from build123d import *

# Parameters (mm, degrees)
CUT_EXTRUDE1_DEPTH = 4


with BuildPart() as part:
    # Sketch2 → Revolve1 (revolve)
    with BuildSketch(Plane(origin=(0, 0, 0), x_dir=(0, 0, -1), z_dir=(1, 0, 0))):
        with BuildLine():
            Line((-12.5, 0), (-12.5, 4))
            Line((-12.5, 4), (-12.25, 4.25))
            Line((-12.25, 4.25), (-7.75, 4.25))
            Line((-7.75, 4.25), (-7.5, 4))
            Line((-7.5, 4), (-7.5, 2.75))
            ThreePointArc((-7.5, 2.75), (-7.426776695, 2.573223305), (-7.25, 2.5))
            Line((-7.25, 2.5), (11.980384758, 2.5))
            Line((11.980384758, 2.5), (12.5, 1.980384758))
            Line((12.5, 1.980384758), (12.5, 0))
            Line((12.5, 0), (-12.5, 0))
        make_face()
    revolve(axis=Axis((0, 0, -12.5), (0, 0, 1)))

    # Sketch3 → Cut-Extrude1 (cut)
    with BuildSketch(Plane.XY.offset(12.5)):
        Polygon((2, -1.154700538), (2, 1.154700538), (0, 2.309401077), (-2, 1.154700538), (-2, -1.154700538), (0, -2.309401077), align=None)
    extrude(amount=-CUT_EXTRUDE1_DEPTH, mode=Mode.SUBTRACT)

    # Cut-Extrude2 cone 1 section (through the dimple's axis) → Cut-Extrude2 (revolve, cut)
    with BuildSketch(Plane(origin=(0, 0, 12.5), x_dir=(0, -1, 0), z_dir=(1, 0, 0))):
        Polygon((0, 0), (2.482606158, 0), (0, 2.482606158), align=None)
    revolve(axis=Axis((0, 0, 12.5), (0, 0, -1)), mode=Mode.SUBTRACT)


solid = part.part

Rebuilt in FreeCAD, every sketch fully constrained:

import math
import FreeCAD as App
import Part
import Sketcher
Q = App.Units.Quantity


def add_polygon(sketch, points):
    """Adds a closed chain of lines whose ends are joined by coincident constraints."""
    first, n = sketch.GeometryCount, len(points)
    for a, b in zip(points, points[1:] + points[:1]):
        sketch.addGeometry(Part.LineSegment(App.Vector(*a, 0), App.Vector(*b, 0)), False)
    for i in range(n):
        sketch.addConstraint(Sketcher.Constraint("Coincident", first + i, 2, first + (i + 1) % n, 1))

doc = App.newDocument("Part")
body = doc.addObject("PartDesign::Body", "Body")

sketch1 = body.newObject("Sketcher::SketchObject", "Sketch")
sketch1.AttachmentSupport = (doc.getObject("YZ_Plane"), [""])
sketch1.MapMode = "FlatFace"
sketch1.addGeometry([
    Part.LineSegment(App.Vector(4, 12.5, 0), App.Vector(0, 12.5, 0)),
    Part.LineSegment(App.Vector(0, 12.5, 0), App.Vector(0, -12.5, 0)),
    Part.LineSegment(App.Vector(0, -12.5, 0), App.Vector(1.98, -12.5, 0)),
    Part.LineSegment(App.Vector(1.98, -12.5, 0), App.Vector(2.5, -11.98, 0)),
    Part.LineSegment(App.Vector(2.5, -11.98, 0), App.Vector(2.5, 7.25, 0)),
    Part.ArcOfCircle(Part.Circle(App.Vector(2.75, 7.25, 0), App.Vector(0, 0, 1), 0.25), math.radians(90), math.radians(180)),
    Part.LineSegment(App.Vector(2.75, 7.5, 0), App.Vector(4, 7.5, 0)),
    Part.LineSegment(App.Vector(4, 7.5, 0), App.Vector(4.25, 7.75, 0)),
    Part.LineSegment(App.Vector(4.25, 7.75, 0), App.Vector(4.25, 12.25, 0)),
    Part.LineSegment(App.Vector(4.25, 12.25, 0), App.Vector(4, 12.5, 0)),
], False)
sketch1.addConstraint([
    Sketcher.Constraint("Coincident", 0, 2, 1, 1),
    Sketcher.Constraint("Coincident", 1, 2, 2, 1),
    Sketcher.Constraint("Coincident", 2, 2, 3, 1),
    Sketcher.Constraint("Coincident", 3, 2, 4, 1),
    Sketcher.Constraint("Tangent", 4, 2, 5, 2),
    Sketcher.Constraint("Tangent", 5, 1, 6, 1),
    Sketcher.Constraint("Coincident", 6, 2, 7, 1),
    Sketcher.Constraint("Coincident", 7, 2, 8, 1),
    Sketcher.Constraint("Coincident", 8, 2, 9, 1),
    Sketcher.Constraint("Coincident", 9, 2, 0, 1),
    Sketcher.Constraint("Horizontal", 0),
    Sketcher.Constraint("Vertical", 1),
    Sketcher.Constraint("Horizontal", 2),
    Sketcher.Constraint("Vertical", 4),
    Sketcher.Constraint("Horizontal", 6),
    Sketcher.Constraint("Vertical", 8),
    Sketcher.Constraint("Symmetric", 0, 2, 1, 2, -1, 1),
    Sketcher.Constraint("Parallel", 3, 7),
    Sketcher.Constraint("Perpendicular", 7, 9),
    Sketcher.Constraint("Vertical", 6, 2, 9, 2),
    Sketcher.Constraint("Equal", 7, 9),
    Sketcher.Constraint("DistanceX", 0, 2, 0, 1, Q("4 mm")),
    Sketcher.Constraint("DistanceY", 1, 2, 1, 1, Q("25 mm")),
    Sketcher.Constraint("Radius", 5, Q("0.25 mm")),
    Sketcher.Constraint("DistanceY", 8, 1, 8, 2, Q("4.5 mm")),
    Sketcher.Constraint("DistanceY", 5, 1, 0, 2, Q("5 mm")),
    Sketcher.Constraint("DistanceX", 6, 1, 6, 2, Q("1.25 mm")),
    Sketcher.Constraint("DistanceX", 2, 1, 2, 2, Q("1.980385 mm")),
])
revolution = body.newObject("PartDesign::Revolution", "Revolution")
revolution.Profile = sketch1
revolution.ReferenceAxis = (sketch1, ["V_Axis"])
revolution.Angle = 360

sketch2 = body.newObject("Sketcher::SketchObject", "Sketch001")
sketch2.AttachmentSupport = (doc.getObject("XY_Plane"), [""])
sketch2.MapMode = "FlatFace"
sketch2.AttachmentOffset = App.Placement(App.Vector(0, 0, 12.5), App.Rotation())
add_polygon(sketch2, [(2, -1.2), (2, 1.2), (0, 2.3), (-2, 1.2), (-2, -1.2), (0, -2.3)])
sketch2.addConstraint([
    Sketcher.Constraint("Vertical", 0),
    Sketcher.Constraint("Vertical", 3),
    Sketcher.Constraint("Symmetric", 0, 2, 3, 2, -1, 1),
    Sketcher.Constraint("Symmetric", 1, 2, 4, 2, -1, 1),
    Sketcher.Constraint("PointOnObject", 1, 2, -2),
    Sketcher.Constraint("Parallel", 2, 5),
    Sketcher.Constraint("Horizontal", 0, 2, 2, 2),
    Sketcher.Constraint("Angle", 1, Q("150 deg")),
    Sketcher.Constraint("DistanceX", -1, 1, 0, 2, Q("2 mm")),
    Sketcher.Constraint("DistanceY", 0, 1, 0, 2, Q("2.309401 mm")),
])
pocket1 = body.newObject("PartDesign::Pocket", "Pocket")
pocket1.Profile = sketch2
pocket1.Length = 4

sketch3 = body.newObject("Sketcher::SketchObject", "Sketch002")
sketch3.AttachmentSupport = (doc.getObject("YZ_Plane"), [""])
sketch3.MapMode = "FlatFace"
add_polygon(sketch3, [(0, 12.5), (-2.5, 12.5), (0, 10)])
sketch3.addConstraint([
    Sketcher.Constraint("Horizontal", 0),
    Sketcher.Constraint("Vertical", 2),
    Sketcher.Constraint("PointOnObject", 1, 2, -2),
    Sketcher.Constraint("Equal", 0, 2),
    Sketcher.Constraint("DistanceY", -1, 1, 0, 2, Q("12.5 mm")),
    Sketcher.Constraint("DistanceX", 0, 2, 0, 1, Q("2.482606 mm")),
])
groove = body.newObject("PartDesign::Groove", "Groove")
groove.Profile = sketch3
groove.ReferenceAxis = (sketch3, ["V_Axis"])
groove.Angle = 360

doc.recompute()
